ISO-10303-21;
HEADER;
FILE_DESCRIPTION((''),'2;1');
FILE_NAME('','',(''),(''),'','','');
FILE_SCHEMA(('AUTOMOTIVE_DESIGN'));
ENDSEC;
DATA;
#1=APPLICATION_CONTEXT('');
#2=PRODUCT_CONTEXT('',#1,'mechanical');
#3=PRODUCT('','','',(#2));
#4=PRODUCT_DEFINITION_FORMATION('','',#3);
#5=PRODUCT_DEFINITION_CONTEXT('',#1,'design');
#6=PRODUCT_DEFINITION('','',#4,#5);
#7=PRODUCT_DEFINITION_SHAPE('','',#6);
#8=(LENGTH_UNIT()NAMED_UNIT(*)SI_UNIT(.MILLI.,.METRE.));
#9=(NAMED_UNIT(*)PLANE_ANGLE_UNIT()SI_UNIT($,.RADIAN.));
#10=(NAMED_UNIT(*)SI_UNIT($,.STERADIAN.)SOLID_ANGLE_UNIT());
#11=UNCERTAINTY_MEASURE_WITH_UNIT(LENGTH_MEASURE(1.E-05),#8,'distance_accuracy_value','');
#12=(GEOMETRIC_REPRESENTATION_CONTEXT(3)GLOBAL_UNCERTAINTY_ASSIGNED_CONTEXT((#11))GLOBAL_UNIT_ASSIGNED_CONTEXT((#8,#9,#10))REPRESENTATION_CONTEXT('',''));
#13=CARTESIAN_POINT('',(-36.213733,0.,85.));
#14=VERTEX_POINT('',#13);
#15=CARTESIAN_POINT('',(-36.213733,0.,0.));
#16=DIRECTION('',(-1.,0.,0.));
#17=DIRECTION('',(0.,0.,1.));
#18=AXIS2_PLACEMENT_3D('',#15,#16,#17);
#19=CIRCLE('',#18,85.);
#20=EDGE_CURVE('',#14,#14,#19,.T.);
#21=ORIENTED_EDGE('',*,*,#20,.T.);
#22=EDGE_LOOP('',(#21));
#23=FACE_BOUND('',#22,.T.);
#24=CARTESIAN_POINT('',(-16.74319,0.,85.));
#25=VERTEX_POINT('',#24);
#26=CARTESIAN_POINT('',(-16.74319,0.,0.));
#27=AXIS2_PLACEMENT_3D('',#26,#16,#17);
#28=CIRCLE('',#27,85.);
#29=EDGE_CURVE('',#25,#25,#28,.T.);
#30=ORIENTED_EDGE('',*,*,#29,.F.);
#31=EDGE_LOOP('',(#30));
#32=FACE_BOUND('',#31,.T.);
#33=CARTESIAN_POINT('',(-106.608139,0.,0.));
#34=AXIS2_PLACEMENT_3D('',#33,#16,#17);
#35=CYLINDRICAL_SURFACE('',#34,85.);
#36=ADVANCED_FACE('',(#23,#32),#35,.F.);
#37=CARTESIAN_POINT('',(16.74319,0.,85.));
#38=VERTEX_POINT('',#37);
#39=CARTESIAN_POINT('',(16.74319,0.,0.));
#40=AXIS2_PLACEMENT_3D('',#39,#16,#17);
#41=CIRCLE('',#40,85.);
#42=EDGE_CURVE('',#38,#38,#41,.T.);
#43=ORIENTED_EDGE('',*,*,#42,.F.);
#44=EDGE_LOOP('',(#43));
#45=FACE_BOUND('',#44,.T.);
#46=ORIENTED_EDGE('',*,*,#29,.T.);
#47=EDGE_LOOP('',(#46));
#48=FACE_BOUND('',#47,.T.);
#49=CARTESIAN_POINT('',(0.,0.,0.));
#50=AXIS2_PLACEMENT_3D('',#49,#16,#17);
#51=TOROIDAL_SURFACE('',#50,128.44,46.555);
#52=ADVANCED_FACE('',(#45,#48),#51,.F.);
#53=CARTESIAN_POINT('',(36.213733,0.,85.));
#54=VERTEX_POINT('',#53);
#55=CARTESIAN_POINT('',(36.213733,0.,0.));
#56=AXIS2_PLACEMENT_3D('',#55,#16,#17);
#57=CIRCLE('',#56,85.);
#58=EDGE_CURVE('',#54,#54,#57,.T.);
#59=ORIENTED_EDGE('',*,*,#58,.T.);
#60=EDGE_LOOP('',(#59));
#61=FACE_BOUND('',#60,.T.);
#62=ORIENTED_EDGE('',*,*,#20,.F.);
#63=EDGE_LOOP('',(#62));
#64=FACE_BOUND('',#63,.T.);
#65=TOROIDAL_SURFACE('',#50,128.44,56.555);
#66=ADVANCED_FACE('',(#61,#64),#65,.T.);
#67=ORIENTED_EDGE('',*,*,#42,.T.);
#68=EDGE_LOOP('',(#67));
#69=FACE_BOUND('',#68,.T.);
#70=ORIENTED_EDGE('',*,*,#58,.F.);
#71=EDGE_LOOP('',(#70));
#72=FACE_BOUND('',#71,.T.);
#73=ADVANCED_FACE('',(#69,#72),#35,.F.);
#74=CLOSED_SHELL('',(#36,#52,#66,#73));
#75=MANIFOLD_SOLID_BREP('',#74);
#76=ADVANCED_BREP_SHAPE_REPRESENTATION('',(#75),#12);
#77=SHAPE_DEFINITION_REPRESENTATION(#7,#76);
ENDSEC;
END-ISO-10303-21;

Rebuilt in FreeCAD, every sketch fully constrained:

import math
import FreeCAD as App
import Part
import Sketcher
from FreeCAD import Vector
Q = App.Units.Quantity

doc = App.newDocument("Part")
params = doc.addObject("Spreadsheet::Sheet", "Params")
for row, (alias, value) in enumerate([
    ("revolution_angle", "360 deg"),
], start=1):
    params.set(f"A{row}", alias)
    params.set(f"B{row}", "=" + value)
    params.setAlias(f"B{row}", alias)

body = doc.addObject("PartDesign::Body", "Body")

# Sketch on XY plane
sketch1 = body.newObject("Sketcher::SketchObject", "Sketch")
sketch1.AttachmentSupport = (doc.getObject("XY_Plane"), [""])
sketch1.MapMode = "FlatFace"
sketch1.addGeometry(Part.LineSegment(Vector(-36, 85, 0), Vector(-17, 85, 0)), False)
sketch1.addGeometry(Part.ArcOfCircle(Part.Circle(Vector(0, 128, 0), Vector(0, 0, 1), 47), math.radians(-69), math.radians(249)), False)
sketch1.addGeometry(Part.LineSegment(Vector(17, 85, 0), Vector(36, 85, 0)), False)
sketch1.addGeometry(Part.ArcOfCircle(Part.Circle(Vector(0, 128, 0), Vector(0, 0, 1), 57), math.radians(-50), math.radians(230)), False)
sketch1.addConstraint(Sketcher.Constraint("Coincident", 0, 2, 1, 2))
sketch1.addConstraint(Sketcher.Constraint("Coincident", 1, 1, 2, 1))
sketch1.addConstraint(Sketcher.Constraint("Coincident", 2, 2, 3, 1))
sketch1.addConstraint(Sketcher.Constraint("Coincident", 3, 2, 0, 1))
sketch1.addConstraint(Sketcher.Constraint("Horizontal", 0))
sketch1.addConstraint(Sketcher.Constraint("Horizontal", 2))
sketch1.addConstraint(Sketcher.Constraint("Coincident", 3, 3, 1, 3))
sketch1.addConstraint(Sketcher.Constraint("Symmetric", 0, 2, 1, 1, -2))
sketch1.addConstraint(Sketcher.Constraint("DistanceY", -1, 1, 0, 2, Q("85 mm")))
sketch1.addConstraint(Sketcher.Constraint("Radius", 1, Q("46.555 mm")))
sketch1.addConstraint(Sketcher.Constraint("Radius", 3, Q("56.555 mm")))
sketch1.addConstraint(Sketcher.Constraint("DistanceY", -1, 1, 1, 3, Q("128.44 mm")))
revolution = body.newObject("PartDesign::Revolution", "Revolution")
revolution.Profile = sketch1
revolution.ReferenceAxis = (sketch1, ["H_Axis"])
revolution.setExpression("Angle", "Params.revolution_angle")

doc.recompute()
